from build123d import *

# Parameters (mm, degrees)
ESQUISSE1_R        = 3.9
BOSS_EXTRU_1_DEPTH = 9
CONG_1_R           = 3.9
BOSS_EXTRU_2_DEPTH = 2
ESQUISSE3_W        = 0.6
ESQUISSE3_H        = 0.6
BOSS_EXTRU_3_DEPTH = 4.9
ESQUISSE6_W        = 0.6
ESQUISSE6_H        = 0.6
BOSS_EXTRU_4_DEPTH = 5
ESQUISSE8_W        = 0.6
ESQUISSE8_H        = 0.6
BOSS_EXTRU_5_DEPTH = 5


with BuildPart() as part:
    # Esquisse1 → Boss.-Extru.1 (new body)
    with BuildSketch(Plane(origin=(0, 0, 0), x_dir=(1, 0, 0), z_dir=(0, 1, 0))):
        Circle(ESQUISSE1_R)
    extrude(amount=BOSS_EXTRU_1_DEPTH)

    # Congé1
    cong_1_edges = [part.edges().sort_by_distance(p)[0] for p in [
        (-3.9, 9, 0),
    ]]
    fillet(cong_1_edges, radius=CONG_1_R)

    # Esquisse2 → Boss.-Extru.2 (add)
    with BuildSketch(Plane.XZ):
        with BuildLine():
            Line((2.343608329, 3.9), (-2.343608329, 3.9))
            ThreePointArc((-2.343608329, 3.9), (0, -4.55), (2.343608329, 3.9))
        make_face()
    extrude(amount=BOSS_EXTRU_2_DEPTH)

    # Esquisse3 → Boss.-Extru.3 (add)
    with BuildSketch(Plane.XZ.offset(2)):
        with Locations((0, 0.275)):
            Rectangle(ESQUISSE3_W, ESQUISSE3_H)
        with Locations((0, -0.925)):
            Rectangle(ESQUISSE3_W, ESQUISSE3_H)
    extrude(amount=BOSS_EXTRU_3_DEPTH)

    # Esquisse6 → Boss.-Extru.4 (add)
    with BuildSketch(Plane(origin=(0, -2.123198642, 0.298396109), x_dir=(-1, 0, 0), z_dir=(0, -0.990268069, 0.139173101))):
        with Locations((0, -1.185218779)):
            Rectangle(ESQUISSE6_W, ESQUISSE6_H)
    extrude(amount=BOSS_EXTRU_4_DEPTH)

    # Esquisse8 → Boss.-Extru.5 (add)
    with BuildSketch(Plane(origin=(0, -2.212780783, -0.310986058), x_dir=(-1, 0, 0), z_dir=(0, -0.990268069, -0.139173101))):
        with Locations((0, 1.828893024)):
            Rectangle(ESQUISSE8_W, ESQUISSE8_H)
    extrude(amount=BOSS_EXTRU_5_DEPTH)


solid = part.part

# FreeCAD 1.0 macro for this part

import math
import FreeCAD as App
import Part
import Sketcher

V = App.Vector


def edges_at(feature, points):
    """Names of the edges that pass closest to the given points."""
    edges = feature.Shape.Edges
    near = lambda p: min(range(len(edges)), key=lambda i: edges[i].distToShape(Part.Vertex(*p))[0])
    return sorted({f"Edge{near(p) + 1}" for p in points})

doc = App.newDocument("Part")
params = doc.addObject("Spreadsheet::Sheet", "Params")
for row, (alias, value) in enumerate([
    ("sketch1_diameter", "7.8 mm"),
    ("pad1_length", "9 mm"),
    ("fillet_radius", "3.9 mm"),
    ("sketch2_radius", "4.55 mm"),
    ("pad2_length", "2 mm"),
    ("sketch3_width", "0.6 mm"),
    ("pad3_length", "4.9 mm"),
    ("sketch4_width", "0.6 mm"),
    ("pad4_length", "5 mm"),
    ("sketch5_width", "0.6 mm"),
    ("pad5_length", "5 mm"),
], start=1):
    params.set(f"A{row}", alias)
    params.set(f"B{row}", "=" + value)
    params.setAlias(f"B{row}", alias)

body = doc.addObject("PartDesign::Body", "Body")

# Sketch on XZ plane
sketch1 = body.newObject("Sketcher::SketchObject", "Sketch")
sketch1.AttachmentSupport = (doc.getObject("XZ_Plane"), [""])
sketch1.MapMode = "FlatFace"
sketch1.addGeometry(Part.Circle(V(0, 0, 0), V(0, 0, 1), 3.9), False)
sketch1.addConstraint(Sketcher.Constraint("Coincident", 0, 3, -1, 1))
sketch1.addConstraint(Sketcher.Constraint("Diameter", 0, 7.8))
sketch1.setExpression("Constraints[1]", "Params.sketch1_diameter")
pad1 = body.newObject("PartDesign::Pad", "Pad")
pad1.Profile = sketch1
pad1.setExpression("Length", "Params.pad1_length")
pad1.Reversed = True
doc.recompute()

fillet = body.newObject("PartDesign::Fillet", "Fillet")
fillet.Base = (pad1, edges_at(pad1, [(-3.9, 9, 0)]))
fillet.setExpression("Radius", "Params.fillet_radius")

# Sketch on XZ plane
sketch2 = body.newObject("Sketcher::SketchObject", "Sketch001")
sketch2.AttachmentSupport = (doc.getObject("XZ_Plane"), [""])
sketch2.MapMode = "FlatFace"
sketch2.addGeometry(Part.LineSegment(V(2.3, 3.9, 0), V(-2.3, 3.9, 0)), False)
sketch2.addGeometry(Part.ArcOfCircle(Part.Circle(V(0, 0, 0), V(0, 0, 1), 4.5), math.radians(121), math.radians(419)), False)
sketch2.addConstraint(Sketcher.Constraint("Coincident", 0, 1, 1, 2))
sketch2.addConstraint(Sketcher.Constraint("Coincident", 1, 1, 0, 2))
sketch2.addConstraint(Sketcher.Constraint("Horizontal", 0))
sketch2.addConstraint(Sketcher.Constraint("Coincident", 1, 3, -1, 1))
sketch2.addConstraint(Sketcher.Constraint("Radius", 1, 4.55))
sketch2.addConstraint(Sketcher.Constraint("DistanceY", -1, 1, 0, 1, 3.9))
sketch2.setExpression("Constraints[4]", "Params.sketch2_radius")
pad2 = body.newObject("PartDesign::Pad", "Pad001")
pad2.Profile = sketch2
pad2.setExpression("Length", "Params.pad2_length")

# Sketch on XZ plane
sketch3 = body.newObject("Sketcher::SketchObject", "Sketch002")
sketch3.AttachmentSupport = (doc.getObject("XZ_Plane"), [""])
sketch3.MapMode = "FlatFace"
sketch3.AttachmentOffset = App.Placement(V(0, 0, 2), App.Rotation())
sketch3.addGeometry(Part.LineSegment(V(-0.3, 0.6, 0), V(-0.3, 0, 0)), False)
sketch3.addGeometry(Part.LineSegment(V(-0.3, 0, 0), V(0.3, 0, 0)), False)
sketch3.addGeometry(Part.LineSegment(V(0.3, 0, 0), V(0.3, 0.6, 0)), False)
sketch3.addGeometry(Part.LineSegment(V(0.3, 0.6, 0), V(-0.3, 0.6, 0)), False)
sketch3.addGeometry(Part.LineSegment(V(-0.3, -0.6, 0), V(-0.3, -1.2, 0)), False)
sketch3.addGeometry(Part.LineSegment(V(-0.3, -1.2, 0), V(0.3, -1.2, 0)), False)
sketch3.addGeometry(Part.LineSegment(V(0.3, -1.2, 0), V(0.3, -0.6, 0)), False)
sketch3.addGeometry(Part.LineSegment(V(0.3, -0.6, 0), V(-0.3, -0.6, 0)), False)
sketch3.addConstraint(Sketcher.Constraint("Coincident", 0, 2, 1, 1))
sketch3.addConstraint(Sketcher.Constraint("Coincident", 1, 2, 2, 1))
sketch3.addConstraint(Sketcher.Constraint("Coincident", 2, 2, 3, 1))
sketch3.addConstraint(Sketcher.Constraint("Coincident", 3, 2, 0, 1))
sketch3.addConstraint(Sketcher.Constraint("Coincident", 4, 2, 5, 1))
sketch3.addConstraint(Sketcher.Constraint("Coincident", 5, 2, 6, 1))
sketch3.addConstraint(Sketcher.Constraint("Coincident", 6, 2, 7, 1))
sketch3.addConstraint(Sketcher.Constraint("Coincident", 7, 2, 4, 1))
sketch3.addConstraint(Sketcher.Constraint("Vertical", 0))
sketch3.addConstraint(Sketcher.Constraint("Horizontal", 1))
sketch3.addConstraint(Sketcher.Constraint("Vertical", 2))
sketch3.addConstraint(Sketcher.Constraint("Horizontal", 3))
sketch3.addConstraint(Sketcher.Constraint("Vertical", 4))
sketch3.addConstraint(Sketcher.Constraint("Horizontal", 5))
sketch3.addConstraint(Sketcher.Constraint("Vertical", 6))
sketch3.addConstraint(Sketcher.Constraint("Horizontal", 7))
sketch3.addConstraint(Sketcher.Constraint("Vertical", 3, 2, 4, 2))
sketch3.addConstraint(Sketcher.Constraint("Vertical", 2, 2, 5, 2))
sketch3.addConstraint(Sketcher.Constraint("Equal", 7, 0))
sketch3.addConstraint(Sketcher.Constraint("Equal", 2, 4))
sketch3.addConstraint(Sketcher.Constraint("DistanceX", 1, 1, 1, 2, 0.6))
sketch3.addConstraint(Sketcher.Constraint("DistanceX", 0, 2, -1, 1, 0.3))
sketch3.addConstraint(Sketcher.Constraint("DistanceY", 4, 2, 0, 2, 1.2))
sketch3.addConstraint(Sketcher.Constraint("DistanceY", 0, 2, -1, 1, 0.025))
sketch3.setExpression("Constraints[20]", "Params.sketch3_width")
pad3 = body.newObject("PartDesign::Pad", "Pad002")
pad3.Profile = sketch3
pad3.setExpression("Length", "Params.pad3_length")

# Sketch on an angled plane
sketch4 = body.newObject("Sketcher::SketchObject", "Sketch003")
sketch4.Placement = App.Placement(V(0, -2.123199, 0.298396), App.Rotation(V(-1, 0, 0), V(0, -0.139173101, -0.990268069), V(0, -0.990268069, 0.139173101), "ZXY"))
sketch4.addGeometry(Part.LineSegment(V(-0.3, -0.9, 0), V(-0.3, -1.5, 0)), False)
sketch4.addGeometry(Part.LineSegment(V(-0.3, -1.5, 0), V(0.3, -1.5, 0)), False)
sketch4.addGeometry(Part.LineSegment(V(0.3, -1.5, 0), V(0.3, -0.9, 0)), False)
sketch4.addGeometry(Part.LineSegment(V(0.3, -0.9, 0), V(-0.3, -0.9, 0)), False)
sketch4.addConstraint(Sketcher.Constraint("Coincident", 0, 2, 1, 1))
sketch4.addConstraint(Sketcher.Constraint("Coincident", 1, 2, 2, 1))
sketch4.addConstraint(Sketcher.Constraint("Coincident", 2, 2, 3, 1))
sketch4.addConstraint(Sketcher.Constraint("Coincident", 3, 2, 0, 1))
sketch4.addConstraint(Sketcher.Constraint("Vertical", 0))
sketch4.addConstraint(Sketcher.Constraint("Horizontal", 1))
sketch4.addConstraint(Sketcher.Constraint("Vertical", 2))
sketch4.addConstraint(Sketcher.Constraint("Horizontal", 3))
sketch4.addConstraint(Sketcher.Constraint("Equal", 3, 0))
sketch4.addConstraint(Sketcher.Constraint("DistanceX", 1, 1, 1, 2, 0.6))
sketch4.addConstraint(Sketcher.Constraint("DistanceX", 0, 2, -1, 1, 0.3))
sketch4.addConstraint(Sketcher.Constraint("DistanceY", 0, 2, -1, 1, 1.485219))
sketch4.setExpression("Constraints[9]", "Params.sketch4_width")
pad4 = body.newObject("PartDesign::Pad", "Pad003")
pad4.Profile = sketch4
pad4.setExpression("Length", "Params.pad4_length")

# Sketch on an angled plane
sketch5 = body.newObject("Sketcher::SketchObject", "Sketch004")
sketch5.Placement = App.Placement(V(0, -2.212781, -0.310986), App.Rotation(V(-1, 0, 0), V(0, 0.139173101, -0.990268069), V(0, -0.990268069, -0.139173101), "ZXY"))
sketch5.addGeometry(Part.LineSegment(V(-0.3, 2.1, 0), V(-0.3, 1.5, 0)), False)
sketch5.addGeometry(Part.LineSegment(V(-0.3, 1.5, 0), V(0.3, 1.5, 0)), False)
sketch5.addGeometry(Part.LineSegment(V(0.3, 1.5, 0), V(0.3, 2.1, 0)), False)
sketch5.addGeometry(Part.LineSegment(V(0.3, 2.1, 0), V(-0.3, 2.1, 0)), False)
sketch5.addConstraint(Sketcher.Constraint("Coincident", 0, 2, 1, 1))
sketch5.addConstraint(Sketcher.Constraint("Coincident", 1, 2, 2, 1))
sketch5.addConstraint(Sketcher.Constraint("Coincident", 2, 2, 3, 1))
sketch5.addConstraint(Sketcher.Constraint("Coincident", 3, 2, 0, 1))
sketch5.addConstraint(Sketcher.Constraint("Vertical", 0))
sketch5.addConstraint(Sketcher.Constraint("Horizontal", 1))
sketch5.addConstraint(Sketcher.Constraint("Vertical", 2))
sketch5.addConstraint(Sketcher.Constraint("Horizontal", 3))
sketch5.addConstraint(Sketcher.Constraint("Equal", 3, 0))
sketch5.addConstraint(Sketcher.Constraint("DistanceX", 1, 1, 1, 2, 0.6))
sketch5.addConstraint(Sketcher.Constraint("DistanceX", 0, 2, -1, 1, 0.3))
sketch5.addConstraint(Sketcher.Constraint("DistanceY", -1, 1, 0, 2, 1.528893))
sketch5.setExpression("Constraints[9]", "Params.sketch5_width")
pad5 = body.newObject("PartDesign::Pad", "Pad004")
pad5.Profile = sketch5
pad5.setExpression("Length", "Params.pad5_length")

doc.recompute()
